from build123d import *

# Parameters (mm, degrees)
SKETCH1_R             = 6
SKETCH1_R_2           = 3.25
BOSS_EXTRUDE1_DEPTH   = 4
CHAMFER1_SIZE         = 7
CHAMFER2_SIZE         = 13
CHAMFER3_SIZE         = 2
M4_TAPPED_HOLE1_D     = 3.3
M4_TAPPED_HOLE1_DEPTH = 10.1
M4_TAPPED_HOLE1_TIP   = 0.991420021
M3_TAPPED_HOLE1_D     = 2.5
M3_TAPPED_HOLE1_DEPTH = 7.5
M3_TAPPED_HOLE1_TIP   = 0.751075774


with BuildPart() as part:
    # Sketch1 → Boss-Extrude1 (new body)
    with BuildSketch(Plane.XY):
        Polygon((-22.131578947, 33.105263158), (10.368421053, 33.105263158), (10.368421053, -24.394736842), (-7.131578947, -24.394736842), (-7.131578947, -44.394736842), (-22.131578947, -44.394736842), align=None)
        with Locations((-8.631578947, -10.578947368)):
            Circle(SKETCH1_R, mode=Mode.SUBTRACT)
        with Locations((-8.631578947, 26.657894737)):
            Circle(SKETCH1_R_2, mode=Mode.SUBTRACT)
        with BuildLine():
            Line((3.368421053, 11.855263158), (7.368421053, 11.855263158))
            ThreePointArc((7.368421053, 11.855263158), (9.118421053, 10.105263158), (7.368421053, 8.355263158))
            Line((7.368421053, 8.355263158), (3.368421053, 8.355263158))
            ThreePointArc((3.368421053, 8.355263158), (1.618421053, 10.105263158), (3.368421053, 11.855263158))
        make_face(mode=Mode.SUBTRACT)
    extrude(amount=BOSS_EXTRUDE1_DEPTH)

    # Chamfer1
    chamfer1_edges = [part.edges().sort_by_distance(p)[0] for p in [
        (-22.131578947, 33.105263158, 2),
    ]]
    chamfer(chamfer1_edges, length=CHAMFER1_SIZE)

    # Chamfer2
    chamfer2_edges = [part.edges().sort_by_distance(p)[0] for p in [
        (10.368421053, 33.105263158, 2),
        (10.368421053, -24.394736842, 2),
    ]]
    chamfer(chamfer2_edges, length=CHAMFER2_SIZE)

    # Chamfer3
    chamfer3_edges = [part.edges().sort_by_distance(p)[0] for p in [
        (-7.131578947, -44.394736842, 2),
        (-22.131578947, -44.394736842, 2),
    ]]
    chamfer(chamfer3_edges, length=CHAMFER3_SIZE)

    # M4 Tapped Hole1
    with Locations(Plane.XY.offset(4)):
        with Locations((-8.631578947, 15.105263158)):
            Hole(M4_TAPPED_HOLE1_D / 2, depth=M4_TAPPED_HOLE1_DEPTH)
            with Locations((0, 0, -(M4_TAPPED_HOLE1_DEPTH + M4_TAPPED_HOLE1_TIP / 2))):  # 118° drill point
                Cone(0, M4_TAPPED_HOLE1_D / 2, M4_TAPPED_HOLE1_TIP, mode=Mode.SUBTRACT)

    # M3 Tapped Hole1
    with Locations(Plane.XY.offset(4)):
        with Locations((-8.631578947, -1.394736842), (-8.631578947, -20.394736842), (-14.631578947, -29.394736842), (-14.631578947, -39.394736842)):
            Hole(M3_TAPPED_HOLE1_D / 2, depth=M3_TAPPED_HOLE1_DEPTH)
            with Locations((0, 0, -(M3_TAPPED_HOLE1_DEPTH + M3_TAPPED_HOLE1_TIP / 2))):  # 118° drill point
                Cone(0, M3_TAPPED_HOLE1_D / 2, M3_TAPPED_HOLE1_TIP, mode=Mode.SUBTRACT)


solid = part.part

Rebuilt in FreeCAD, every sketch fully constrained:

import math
import FreeCAD as App
import Part
import Sketcher
Q = App.Units.Quantity


def edges_at(feature, points):
    """Names of the edges that pass closest to the given points."""
    edges = feature.Shape.Edges
    near = lambda p: min(range(len(edges)), key=lambda i: edges[i].distToShape(Part.Vertex(*p))[0])
    return sorted({f"Edge{near(p) + 1}" for p in points})

doc = App.newDocument("Part")
body = doc.addObject("PartDesign::Body", "Body")

# Sketch on XY plane
sketch1 = body.newObject("Sketcher::SketchObject", "Sketch")
sketch1.AttachmentSupport = (doc.getObject("XY_Plane"), [""])
sketch1.MapMode = "FlatFace"
sketch1.addGeometry([
    Part.LineSegment(App.Vector(10.368421, 33.105263, 0), App.Vector(-22.131579, 33.105263, 0)),  # 0
    Part.LineSegment(App.Vector(-22.131579, 33.105263, 0), App.Vector(-22.131579, -44.394737, 0)),  # 1
    Part.LineSegment(App.Vector(-22.131579, -44.394737, 0), App.Vector(-7.131579, -44.394737, 0)),  # 2
    Part.LineSegment(App.Vector(-7.131579, -44.394737, 0), App.Vector(-7.131579, -24.394737, 0)),  # 3
    Part.LineSegment(App.Vector(-7.131579, -24.394737, 0), App.Vector(10.368421, -24.394737, 0)),  # 4
    Part.LineSegment(App.Vector(10.368421, -24.394737, 0), App.Vector(10.368421, 33.105263, 0)),  # 5
    Part.Circle(App.Vector(-8.631579, -10.578947, 0), App.Vector(0, 0, 1), 6),  # 6
    Part.LineSegment(App.Vector(3.368421, 11.855263, 0), App.Vector(7.368421, 11.855263, 0)),  # 7
    Part.ArcOfCircle(Part.Circle(App.Vector(7.368421, 10.105263, 0), App.Vector(0, 0, 1), 1.75), math.radians(-90), math.radians(90)),  # 8
    Part.LineSegment(App.Vector(7.368421, 8.355263, 0), App.Vector(3.368421, 8.355263, 0)),  # 9
    Part.ArcOfCircle(Part.Circle(App.Vector(3.368421, 10.105263, 0), App.Vector(0, 0, 1), 1.75), math.radians(90), math.radians(270)),  # 10
    Part.Circle(App.Vector(-8.631579, 26.657895, 0), App.Vector(0, 0, 1), 3.25),  # 11
], False)
sketch1.addConstraint([
    Sketcher.Constraint("Coincident", 0, 2, 1, 1),
    Sketcher.Constraint("Coincident", 1, 2, 2, 1),
    Sketcher.Constraint("Coincident", 2, 2, 3, 1),
    Sketcher.Constraint("Coincident", 3, 2, 4, 1),
    Sketcher.Constraint("Coincident", 4, 2, 5, 1),
    Sketcher.Constraint("Coincident", 5, 2, 0, 1),
    Sketcher.Constraint("Tangent", 7, 2, 8, 2),
    Sketcher.Constraint("Tangent", 8, 1, 9, 1),
    Sketcher.Constraint("Tangent", 9, 2, 10, 2),
    Sketcher.Constraint("Tangent", 10, 1, 7, 1),
    Sketcher.Constraint("Horizontal", 0),
    Sketcher.Constraint("Vertical", 1),
    Sketcher.Constraint("Horizontal", 2),
    Sketcher.Constraint("Vertical", 3),
    Sketcher.Constraint("Horizontal", 4),
    Sketcher.Constraint("Vertical", 5),
    Sketcher.Constraint("Horizontal", 7),
    Sketcher.Constraint("Horizontal", 9),
    Sketcher.Constraint("Vertical", 6, 3, 11, 3),
    Sketcher.Constraint("Diameter", 6, Q("12 mm")),
    Sketcher.Constraint("Diameter", 11, Q("6.5 mm")),
    Sketcher.Constraint("DistanceX", 2, 1, 2, 2, Q("15 mm")),
    Sketcher.Constraint("DistanceX", 7, 1, 7, 2, Q("4 mm")),
    Sketcher.Constraint("DistanceY", 3, 1, 3, 2, Q("20 mm")),
    Sketcher.Constraint("Radius", 8, Q("1.75 mm")),
    Sketcher.Constraint("DistanceX", 0, 2, 0, 1, Q("32.5 mm")),
    Sketcher.Constraint("DistanceY", 1, 2, 1, 1, Q("77.5 mm")),
    Sketcher.Constraint("DistanceX", 6, 3, 8, 3, Q("16 mm")),
    Sketcher.Constraint("DistanceY", 10, 3, 0, 2, Q("23 mm")),
    Sketcher.Constraint("DistanceX", 6, 3, 4, 2, Q("19 mm")),
    Sketcher.Constraint("DistanceX", 6, 3, -1, 1, Q("8.631579 mm")),
    Sketcher.Constraint("DistanceY", 6, 3, 8, 3, Q("20.684211 mm")),
    Sketcher.Constraint("DistanceY", 10, 3, 11, 3, Q("16.552632 mm")),
    Sketcher.Constraint("DistanceY", 6, 3, -1, 1, Q("10.578947 mm")),
])
pad1 = body.newObject("PartDesign::Pad", "Pad")
pad1.Profile = sketch1
pad1.Length = 4
doc.recompute()

chamfer = body.newObject("PartDesign::Chamfer", "Chamfer")
chamfer.Base = (pad1, edges_at(pad1, [(-22.132, 33.105, 2)]))
chamfer.Size = 7
doc.recompute()

chamfer2 = body.newObject("PartDesign::Chamfer", "Chamfer001")
chamfer2.Base = (chamfer, edges_at(chamfer, [(10.368, 33.105, 2), (10.368, -24.395, 2)]))
chamfer2.Size = 13
doc.recompute()

chamfer3 = body.newObject("PartDesign::Chamfer", "Chamfer002")
chamfer3.Base = (chamfer2, edges_at(chamfer2, [(-7.132, -44.395, 2), (-22.132, -44.395, 2)]))
chamfer3.Size = 2

# Sketch on XY plane
sketch2 = body.newObject("Sketcher::SketchObject", "Sketch001")
sketch2.AttachmentSupport = (doc.getObject("XY_Plane"), [""])
sketch2.MapMode = "FlatFace"
sketch2.AttachmentOffset = App.Placement(App.Vector(0, 0, 4), App.Rotation())
sketch2.addGeometry(Part.Circle(App.Vector(-8.631579, 15.105263, 0), App.Vector(0, 0, 1), 1.65), False)
sketch2.addConstraint([
    Sketcher.Constraint("Diameter", 0, Q("3.3 mm")),
    Sketcher.Constraint("DistanceX", 0, 3, -1, 1, Q("8.631579 mm")),
    Sketcher.Constraint("DistanceY", -1, 1, 0, 3, Q("15.105263 mm")),
])
doc.recompute()
hole = body.newObject("PartDesign::Hole", "Hole")
hole.Profile = sketch2
hole.ThreadType = "None"
hole.Diameter = 3.3
hole.DepthType = "Dimension"
hole.Depth = 10.1
hole.DrillPoint = "Angled"
hole.DrillPointAngle = 118

# Sketch on XY plane
sketch3 = body.newObject("Sketcher::SketchObject", "Sketch002")
sketch3.AttachmentSupport = (doc.getObject("XY_Plane"), [""])
sketch3.MapMode = "FlatFace"
sketch3.AttachmentOffset = App.Placement(App.Vector(0, 0, 4), App.Rotation())
sketch3.addGeometry([
    Part.Circle(App.Vector(-8.631579, -1.394737, 0), App.Vector(0, 0, 1), 1.25),
    Part.Circle(App.Vector(-8.631579, -20.394737, 0), App.Vector(0, 0, 1), 1.25),
    Part.Circle(App.Vector(-14.631579, -29.394737, 0), App.Vector(0, 0, 1), 1.25),
    Part.Circle(App.Vector(-14.631579, -39.394737, 0), App.Vector(0, 0, 1), 1.25),
], False)
sketch3.addConstraint([
    Sketcher.Constraint("Equal", 0, 1),
    Sketcher.Constraint("Equal", 1, 2),
    Sketcher.Constraint("Equal", 2, 3),
    Sketcher.Constraint("Vertical", 0, 3, 1, 3),
    Sketcher.Constraint("Vertical", 2, 3, 3, 3),
    Sketcher.Constraint("Diameter", 0, Q("2.5 mm")),
    Sketcher.Constraint("DistanceY", 1, 3, 0, 3, Q("19 mm")),
    Sketcher.Constraint("DistanceX", 2, 3, 1, 3, Q("6 mm")),
    Sketcher.Constraint("DistanceY", 2, 3, 1, 3, Q("9 mm")),
    Sketcher.Constraint("DistanceY", 3, 3, 2, 3, Q("10 mm")),
    Sketcher.Constraint("DistanceX", 0, 3, -1, 1, Q("8.631579 mm")),
    Sketcher.Constraint("DistanceY", 0, 3, -1, 1, Q("1.394737 mm")),
])
doc.recompute()
hole2 = body.newObject("PartDesign::Hole", "Hole001")
hole2.Profile = sketch3
hole2.ThreadType = "None"
hole2.Diameter = 2.5
hole2.DepthType = "Dimension"
hole2.Depth = 7.5
hole2.DrillPoint = "Angled"
hole2.DrillPointAngle = 118

doc.recompute()
